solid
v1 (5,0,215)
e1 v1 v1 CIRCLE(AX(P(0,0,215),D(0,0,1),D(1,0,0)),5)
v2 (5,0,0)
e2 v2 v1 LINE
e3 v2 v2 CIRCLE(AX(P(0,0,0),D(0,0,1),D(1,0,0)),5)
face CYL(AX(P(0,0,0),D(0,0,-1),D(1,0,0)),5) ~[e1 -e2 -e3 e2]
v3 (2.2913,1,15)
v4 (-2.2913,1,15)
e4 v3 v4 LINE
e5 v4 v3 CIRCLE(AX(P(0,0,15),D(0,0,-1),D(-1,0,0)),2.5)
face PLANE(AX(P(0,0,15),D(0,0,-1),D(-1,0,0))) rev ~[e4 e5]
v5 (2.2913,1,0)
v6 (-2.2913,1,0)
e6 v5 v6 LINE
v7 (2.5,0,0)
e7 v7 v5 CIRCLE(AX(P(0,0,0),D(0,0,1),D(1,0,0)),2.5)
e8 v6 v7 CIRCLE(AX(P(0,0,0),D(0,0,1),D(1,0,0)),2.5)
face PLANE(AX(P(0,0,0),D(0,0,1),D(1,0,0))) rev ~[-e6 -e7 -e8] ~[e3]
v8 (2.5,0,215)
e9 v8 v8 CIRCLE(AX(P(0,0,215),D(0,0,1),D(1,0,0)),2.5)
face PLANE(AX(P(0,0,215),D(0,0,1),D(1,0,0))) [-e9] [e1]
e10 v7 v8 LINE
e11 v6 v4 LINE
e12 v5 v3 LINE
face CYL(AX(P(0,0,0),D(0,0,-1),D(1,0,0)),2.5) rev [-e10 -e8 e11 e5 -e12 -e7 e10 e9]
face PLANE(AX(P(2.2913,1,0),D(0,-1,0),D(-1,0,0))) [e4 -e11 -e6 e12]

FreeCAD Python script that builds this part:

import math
import FreeCAD as App
import Part
import Sketcher
from FreeCAD import Vector

doc = App.newDocument("Part")
params = doc.addObject("Spreadsheet::Sheet", "Params")
for row, (alias, value) in enumerate([
    ("sketch1_diameter", "10 mm"),
    ("sketch1_diameter2", "5 mm"),
    ("pad1_length", "215 mm"),
    ("sketch2_radius", "2.5 mm"),
    ("pad2_length", "15 mm"),
], start=1):
    params.set(f"A{row}", alias)
    params.set(f"B{row}", "=" + value)
    params.setAlias(f"B{row}", alias)

body = doc.addObject("PartDesign::Body", "Body")

# Sketch on XY plane
sketch1 = body.newObject("Sketcher::SketchObject", "Sketch")
sketch1.AttachmentSupport = (doc.getObject("XY_Plane"), [""])
sketch1.MapMode = "FlatFace"
sketch1.addGeometry([
    Part.Circle(Vector(0, 0, 0), Vector(0, 0, 1), 5),
    Part.Circle(Vector(0, 0, 0), Vector(0, 0, 1), 2.5),
], False)
sketch1.addConstraint([
    Sketcher.Constraint("Coincident", 0, 3, -1, 1),
    Sketcher.Constraint("Coincident", 1, 3, -1, 1),
    Sketcher.Constraint("Diameter", 0, 10.0),
    Sketcher.Constraint("Diameter", 1, 5.0),
])
sketch1.setExpression("Constraints[2]", "Params.sketch1_diameter")
sketch1.setExpression("Constraints[3]", "Params.sketch1_diameter2")
pad1 = body.newObject("PartDesign::Pad", "Pad")
pad1.Profile = sketch1
pad1.setExpression("Length", "Params.pad1_length")

# Sketch on XY plane
sketch2 = body.newObject("Sketcher::SketchObject", "Sketch001")
sketch2.AttachmentSupport = (doc.getObject("XY_Plane"), [""])
sketch2.MapMode = "FlatFace"
sketch2.addGeometry([
    Part.LineSegment(Vector(2.2913, 1, 0), Vector(-2.2913, 1, 0)),
    Part.ArcOfCircle(Part.Circle(Vector(0, 0, 0), Vector(0, 0, 1), 2.5), math.radians(23.578067), math.radians(156.421933)),
], False)
sketch2.addConstraint([
    Sketcher.Constraint("Coincident", 0, 1, 1, 1),
    Sketcher.Constraint("Coincident", 1, 2, 0, 2),
    Sketcher.Constraint("Horizontal", 0),
    Sketcher.Constraint("Coincident", 1, 3, -1, 1),
    Sketcher.Constraint("DistanceY", -1, 1, 0, 1, 1.0),
    Sketcher.Constraint("Radius", 1, 2.5),
])
sketch2.setExpression("Constraints[5]", "Params.sketch2_radius")
pad2 = body.newObject("PartDesign::Pad", "Pad001")
pad2.Profile = sketch2
pad2.setExpression("Length", "Params.pad2_length")

doc.recompute()
